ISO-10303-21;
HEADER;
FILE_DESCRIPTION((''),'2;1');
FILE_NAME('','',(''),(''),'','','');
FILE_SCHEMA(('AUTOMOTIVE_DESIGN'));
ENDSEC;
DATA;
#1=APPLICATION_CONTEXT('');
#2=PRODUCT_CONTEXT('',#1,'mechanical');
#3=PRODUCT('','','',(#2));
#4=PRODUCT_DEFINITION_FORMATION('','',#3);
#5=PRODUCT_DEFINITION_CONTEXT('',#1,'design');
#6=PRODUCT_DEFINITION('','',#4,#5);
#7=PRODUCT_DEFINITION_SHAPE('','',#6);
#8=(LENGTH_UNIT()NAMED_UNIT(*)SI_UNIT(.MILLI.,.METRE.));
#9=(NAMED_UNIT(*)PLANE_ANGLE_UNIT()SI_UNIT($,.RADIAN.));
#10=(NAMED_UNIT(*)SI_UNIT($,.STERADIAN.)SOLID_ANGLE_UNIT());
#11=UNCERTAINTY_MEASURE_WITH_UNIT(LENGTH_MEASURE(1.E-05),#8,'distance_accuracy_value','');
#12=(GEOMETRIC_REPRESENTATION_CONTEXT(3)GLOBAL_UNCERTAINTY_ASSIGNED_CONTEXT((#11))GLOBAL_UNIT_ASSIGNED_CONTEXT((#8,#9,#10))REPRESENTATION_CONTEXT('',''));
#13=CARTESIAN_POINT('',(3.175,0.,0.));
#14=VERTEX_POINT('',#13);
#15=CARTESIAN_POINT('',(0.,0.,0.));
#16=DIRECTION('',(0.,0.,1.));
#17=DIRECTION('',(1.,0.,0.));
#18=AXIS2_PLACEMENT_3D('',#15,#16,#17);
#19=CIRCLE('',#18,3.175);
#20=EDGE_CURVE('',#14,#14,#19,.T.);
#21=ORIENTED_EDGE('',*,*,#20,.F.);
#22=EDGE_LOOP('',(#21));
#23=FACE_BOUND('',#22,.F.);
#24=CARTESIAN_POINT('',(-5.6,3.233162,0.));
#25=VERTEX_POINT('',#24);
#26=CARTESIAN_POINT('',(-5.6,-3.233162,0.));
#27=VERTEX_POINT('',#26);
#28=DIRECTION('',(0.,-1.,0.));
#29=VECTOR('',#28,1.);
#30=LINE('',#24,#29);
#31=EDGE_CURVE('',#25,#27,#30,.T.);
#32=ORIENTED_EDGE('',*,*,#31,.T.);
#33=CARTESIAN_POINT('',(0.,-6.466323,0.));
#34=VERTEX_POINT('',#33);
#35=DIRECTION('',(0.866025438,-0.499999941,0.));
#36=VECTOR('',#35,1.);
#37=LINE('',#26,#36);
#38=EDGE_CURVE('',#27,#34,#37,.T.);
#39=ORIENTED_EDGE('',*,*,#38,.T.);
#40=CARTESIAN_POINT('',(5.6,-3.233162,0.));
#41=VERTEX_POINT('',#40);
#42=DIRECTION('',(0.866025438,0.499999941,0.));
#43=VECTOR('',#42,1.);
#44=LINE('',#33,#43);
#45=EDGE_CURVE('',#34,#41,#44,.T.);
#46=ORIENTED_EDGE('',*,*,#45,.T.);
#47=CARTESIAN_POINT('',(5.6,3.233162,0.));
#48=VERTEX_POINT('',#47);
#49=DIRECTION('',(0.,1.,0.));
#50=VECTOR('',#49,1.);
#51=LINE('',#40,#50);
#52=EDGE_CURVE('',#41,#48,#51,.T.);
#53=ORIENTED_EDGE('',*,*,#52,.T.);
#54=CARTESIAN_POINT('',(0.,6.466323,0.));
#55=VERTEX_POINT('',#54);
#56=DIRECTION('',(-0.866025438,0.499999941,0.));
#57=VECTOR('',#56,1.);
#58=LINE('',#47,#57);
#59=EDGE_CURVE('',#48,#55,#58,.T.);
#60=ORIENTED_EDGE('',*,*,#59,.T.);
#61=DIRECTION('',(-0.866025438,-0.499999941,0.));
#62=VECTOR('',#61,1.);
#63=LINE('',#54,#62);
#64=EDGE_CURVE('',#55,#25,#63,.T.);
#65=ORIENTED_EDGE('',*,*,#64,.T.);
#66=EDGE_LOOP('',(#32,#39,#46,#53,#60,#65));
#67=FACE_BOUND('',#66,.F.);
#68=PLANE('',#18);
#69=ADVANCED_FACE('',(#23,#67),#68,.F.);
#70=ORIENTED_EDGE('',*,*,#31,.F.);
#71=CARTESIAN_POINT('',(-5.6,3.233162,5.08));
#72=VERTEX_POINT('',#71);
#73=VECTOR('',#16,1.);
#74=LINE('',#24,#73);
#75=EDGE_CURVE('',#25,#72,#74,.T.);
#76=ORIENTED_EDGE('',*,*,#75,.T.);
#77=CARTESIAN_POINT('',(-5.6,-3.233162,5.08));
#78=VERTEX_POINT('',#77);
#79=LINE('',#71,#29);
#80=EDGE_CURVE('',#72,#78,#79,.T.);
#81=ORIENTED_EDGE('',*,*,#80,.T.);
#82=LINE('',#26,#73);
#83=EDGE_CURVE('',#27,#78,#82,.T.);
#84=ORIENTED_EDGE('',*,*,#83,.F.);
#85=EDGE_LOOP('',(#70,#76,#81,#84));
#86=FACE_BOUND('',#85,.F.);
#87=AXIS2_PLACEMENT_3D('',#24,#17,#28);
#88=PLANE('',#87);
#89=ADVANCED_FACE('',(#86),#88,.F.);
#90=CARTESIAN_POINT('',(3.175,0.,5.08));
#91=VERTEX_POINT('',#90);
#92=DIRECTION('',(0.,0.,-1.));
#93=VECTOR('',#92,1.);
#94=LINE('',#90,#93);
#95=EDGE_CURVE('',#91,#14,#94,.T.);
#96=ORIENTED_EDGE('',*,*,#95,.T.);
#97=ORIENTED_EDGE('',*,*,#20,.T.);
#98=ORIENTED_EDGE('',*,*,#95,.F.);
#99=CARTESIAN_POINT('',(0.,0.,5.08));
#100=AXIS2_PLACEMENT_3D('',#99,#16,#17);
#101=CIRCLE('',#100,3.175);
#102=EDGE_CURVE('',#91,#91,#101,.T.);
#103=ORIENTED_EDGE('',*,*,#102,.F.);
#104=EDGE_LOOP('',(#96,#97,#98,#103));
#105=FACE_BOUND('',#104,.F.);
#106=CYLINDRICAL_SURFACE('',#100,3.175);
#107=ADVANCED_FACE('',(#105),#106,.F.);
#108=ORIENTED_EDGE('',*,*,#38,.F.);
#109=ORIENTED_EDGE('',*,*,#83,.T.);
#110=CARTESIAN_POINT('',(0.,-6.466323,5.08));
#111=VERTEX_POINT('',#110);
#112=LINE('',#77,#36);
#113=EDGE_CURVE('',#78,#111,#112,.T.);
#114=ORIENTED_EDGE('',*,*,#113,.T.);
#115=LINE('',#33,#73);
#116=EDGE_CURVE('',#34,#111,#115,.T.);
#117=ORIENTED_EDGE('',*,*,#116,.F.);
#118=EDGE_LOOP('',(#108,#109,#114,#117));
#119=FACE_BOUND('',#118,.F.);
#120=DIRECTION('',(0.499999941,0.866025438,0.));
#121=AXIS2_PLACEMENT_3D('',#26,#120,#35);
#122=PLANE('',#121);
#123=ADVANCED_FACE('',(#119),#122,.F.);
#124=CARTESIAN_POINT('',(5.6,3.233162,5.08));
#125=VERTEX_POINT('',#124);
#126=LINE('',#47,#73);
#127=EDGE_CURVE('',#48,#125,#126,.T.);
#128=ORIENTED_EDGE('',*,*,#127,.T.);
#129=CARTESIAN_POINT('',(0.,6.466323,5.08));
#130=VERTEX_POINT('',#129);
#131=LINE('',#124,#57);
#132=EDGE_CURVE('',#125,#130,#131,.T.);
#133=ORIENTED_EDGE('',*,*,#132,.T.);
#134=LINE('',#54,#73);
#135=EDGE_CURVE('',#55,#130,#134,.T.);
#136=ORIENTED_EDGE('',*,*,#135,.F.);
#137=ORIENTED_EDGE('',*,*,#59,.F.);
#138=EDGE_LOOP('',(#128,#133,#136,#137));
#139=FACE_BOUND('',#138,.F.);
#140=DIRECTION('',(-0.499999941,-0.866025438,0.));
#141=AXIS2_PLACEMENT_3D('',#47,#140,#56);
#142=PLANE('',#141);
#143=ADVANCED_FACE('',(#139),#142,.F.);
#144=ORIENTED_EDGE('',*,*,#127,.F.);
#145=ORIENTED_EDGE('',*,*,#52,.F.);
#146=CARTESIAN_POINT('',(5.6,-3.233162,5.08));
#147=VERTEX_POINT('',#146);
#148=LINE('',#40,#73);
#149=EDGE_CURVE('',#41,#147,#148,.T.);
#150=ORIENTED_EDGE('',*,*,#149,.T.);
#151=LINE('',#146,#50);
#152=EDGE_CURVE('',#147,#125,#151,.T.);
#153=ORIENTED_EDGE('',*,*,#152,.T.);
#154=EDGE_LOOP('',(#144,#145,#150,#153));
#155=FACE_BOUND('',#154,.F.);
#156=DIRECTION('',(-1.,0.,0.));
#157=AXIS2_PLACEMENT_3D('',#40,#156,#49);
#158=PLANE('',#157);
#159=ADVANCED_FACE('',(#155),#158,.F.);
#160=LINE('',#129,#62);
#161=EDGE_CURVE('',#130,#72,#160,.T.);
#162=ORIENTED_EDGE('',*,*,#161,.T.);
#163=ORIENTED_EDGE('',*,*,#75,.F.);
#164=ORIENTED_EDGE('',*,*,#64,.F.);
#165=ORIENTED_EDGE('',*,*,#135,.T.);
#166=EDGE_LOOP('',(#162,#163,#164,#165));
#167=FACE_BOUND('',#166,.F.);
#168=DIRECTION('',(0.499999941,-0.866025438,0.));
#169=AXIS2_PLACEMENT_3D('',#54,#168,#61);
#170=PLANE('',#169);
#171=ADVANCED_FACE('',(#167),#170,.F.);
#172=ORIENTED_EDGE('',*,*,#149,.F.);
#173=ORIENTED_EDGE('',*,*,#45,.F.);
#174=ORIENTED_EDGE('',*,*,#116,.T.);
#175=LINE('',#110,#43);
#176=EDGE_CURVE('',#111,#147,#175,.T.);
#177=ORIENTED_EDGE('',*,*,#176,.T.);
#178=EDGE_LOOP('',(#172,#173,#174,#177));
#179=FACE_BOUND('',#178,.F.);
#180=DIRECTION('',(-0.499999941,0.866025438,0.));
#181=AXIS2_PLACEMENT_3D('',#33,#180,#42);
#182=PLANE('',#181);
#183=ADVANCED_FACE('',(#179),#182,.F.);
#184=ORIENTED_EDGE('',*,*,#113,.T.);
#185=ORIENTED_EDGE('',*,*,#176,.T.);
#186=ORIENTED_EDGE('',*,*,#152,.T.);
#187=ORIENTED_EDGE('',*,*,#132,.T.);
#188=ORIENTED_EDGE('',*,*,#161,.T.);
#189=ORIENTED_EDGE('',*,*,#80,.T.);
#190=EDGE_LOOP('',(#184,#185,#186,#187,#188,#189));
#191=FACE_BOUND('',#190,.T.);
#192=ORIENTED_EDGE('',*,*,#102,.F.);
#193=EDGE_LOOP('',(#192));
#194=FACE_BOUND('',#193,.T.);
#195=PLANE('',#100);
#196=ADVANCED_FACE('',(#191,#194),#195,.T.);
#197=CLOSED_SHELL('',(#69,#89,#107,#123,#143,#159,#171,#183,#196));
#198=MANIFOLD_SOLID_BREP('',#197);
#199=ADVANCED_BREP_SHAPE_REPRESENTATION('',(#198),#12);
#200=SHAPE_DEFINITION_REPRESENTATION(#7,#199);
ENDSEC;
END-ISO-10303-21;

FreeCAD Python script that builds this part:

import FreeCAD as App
import Part
import Sketcher

V = App.Vector
Q = App.Units.Quantity

doc = App.newDocument("Part")
body = doc.addObject("PartDesign::Body", "Body")

# Sketch on XY plane
sketch1 = body.newObject("Sketcher::SketchObject", "Sketch")
sketch1.AttachmentSupport = (doc.getObject("XY_Plane"), [""])
sketch1.MapMode = "FlatFace"
sketch1.addGeometry(Part.LineSegment(V(-5.6, 3.233162, 0), V(-5.6, -3.233162, 0)), False)
sketch1.addGeometry(Part.LineSegment(V(-5.6, -3.233162, 0), V(0, -6.466323, 0)), False)
sketch1.addGeometry(Part.LineSegment(V(0, -6.466323, 0), V(5.6, -3.233162, 0)), False)
sketch1.addGeometry(Part.LineSegment(V(5.6, -3.233162, 0), V(5.6, 3.233162, 0)), False)
sketch1.addGeometry(Part.LineSegment(V(5.6, 3.233162, 0), V(0, 6.466323, 0)), False)
sketch1.addGeometry(Part.LineSegment(V(0, 6.466323, 0), V(-5.6, 3.233162, 0)), False)
sketch1.addConstraint(Sketcher.Constraint("Coincident", 0, 2, 1, 1))
sketch1.addConstraint(Sketcher.Constraint("Coincident", 1, 2, 2, 1))
sketch1.addConstraint(Sketcher.Constraint("Coincident", 2, 2, 3, 1))
sketch1.addConstraint(Sketcher.Constraint("Coincident", 3, 2, 4, 1))
sketch1.addConstraint(Sketcher.Constraint("Coincident", 4, 2, 5, 1))
sketch1.addConstraint(Sketcher.Constraint("Coincident", 5, 2, 0, 1))
sketch1.addConstraint(Sketcher.Constraint("Vertical", 0))
sketch1.addConstraint(Sketcher.Constraint("Vertical", 3))
sketch1.addConstraint(Sketcher.Constraint("Symmetric", 0, 2, 3, 2, -1, 1))
sketch1.addConstraint(Sketcher.Constraint("Symmetric", 1, 2, 4, 2, -1, 1))
sketch1.addConstraint(Sketcher.Constraint("PointOnObject", 1, 2, -2))
sketch1.addConstraint(Sketcher.Constraint("Parallel", 2, 5))
sketch1.addConstraint(Sketcher.Constraint("Horizontal", 0, 2, 2, 2))
sketch1.addConstraint(Sketcher.Constraint("Angle", 1, Q("-29.999996 deg")))
sketch1.addConstraint(Sketcher.Constraint("DistanceX", 0, 2, -1, 1, Q("5.6 mm")))
sketch1.addConstraint(Sketcher.Constraint("DistanceY", 0, 2, 0, 1, Q("6.466324 mm")))
pad1 = body.newObject("PartDesign::Pad", "Pad")
pad1.Profile = sketch1
pad1.Length = Q("0.2 in")

# Sketch on XY plane
sketch2 = body.newObject("Sketcher::SketchObject", "Sketch001")
sketch2.AttachmentSupport = (doc.getObject("XY_Plane"), [""])
sketch2.MapMode = "FlatFace"
sketch2.AttachmentOffset = App.Placement(V(0, 0, 0.2 * 25.4), App.Rotation())
sketch2.addGeometry(Part.Circle(V(0, 0, 0), V(0, 0, 1), 3.175), False)
sketch2.addConstraint(Sketcher.Constraint("Coincident", 0, 3, -1, 1))
sketch2.addConstraint(Sketcher.Constraint("Diameter", 0, Q("0.25 in")))
pocket1 = body.newObject("PartDesign::Pocket", "Pocket")
pocket1.Profile = sketch2
pocket1.Type = "ThroughAll"

doc.recompute()
